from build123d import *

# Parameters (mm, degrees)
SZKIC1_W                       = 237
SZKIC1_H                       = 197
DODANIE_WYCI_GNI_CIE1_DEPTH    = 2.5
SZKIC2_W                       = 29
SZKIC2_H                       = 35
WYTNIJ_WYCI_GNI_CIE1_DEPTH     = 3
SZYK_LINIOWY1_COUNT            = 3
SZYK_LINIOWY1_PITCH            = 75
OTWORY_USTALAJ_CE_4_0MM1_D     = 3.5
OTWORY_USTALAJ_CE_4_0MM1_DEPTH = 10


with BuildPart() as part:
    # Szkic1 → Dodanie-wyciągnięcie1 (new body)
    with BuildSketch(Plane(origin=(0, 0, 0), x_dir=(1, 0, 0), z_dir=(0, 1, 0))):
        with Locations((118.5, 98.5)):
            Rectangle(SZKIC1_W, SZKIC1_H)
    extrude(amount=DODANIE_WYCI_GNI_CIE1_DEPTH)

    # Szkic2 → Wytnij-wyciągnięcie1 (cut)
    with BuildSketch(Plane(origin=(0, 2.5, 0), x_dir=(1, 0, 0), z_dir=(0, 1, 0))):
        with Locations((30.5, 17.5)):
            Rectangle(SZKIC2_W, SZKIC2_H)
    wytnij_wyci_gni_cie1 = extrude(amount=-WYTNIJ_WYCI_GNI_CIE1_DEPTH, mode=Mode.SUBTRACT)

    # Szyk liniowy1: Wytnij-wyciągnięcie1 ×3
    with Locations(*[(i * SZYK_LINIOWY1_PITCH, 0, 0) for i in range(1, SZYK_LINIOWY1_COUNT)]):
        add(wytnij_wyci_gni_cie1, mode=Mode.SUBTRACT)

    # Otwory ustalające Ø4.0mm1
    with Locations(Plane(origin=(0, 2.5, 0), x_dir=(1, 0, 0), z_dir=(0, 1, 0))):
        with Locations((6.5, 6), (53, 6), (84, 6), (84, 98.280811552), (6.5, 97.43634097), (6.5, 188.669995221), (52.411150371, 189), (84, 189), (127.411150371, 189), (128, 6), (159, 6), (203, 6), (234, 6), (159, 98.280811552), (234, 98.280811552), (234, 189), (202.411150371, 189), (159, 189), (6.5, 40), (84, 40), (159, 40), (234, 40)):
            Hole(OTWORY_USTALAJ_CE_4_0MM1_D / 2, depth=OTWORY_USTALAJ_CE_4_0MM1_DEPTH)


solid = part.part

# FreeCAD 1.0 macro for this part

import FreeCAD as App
import Part
import Sketcher

V = App.Vector


def add_polygon(sketch, points):
    """Adds a closed chain of lines whose ends are joined by coincident constraints."""
    first, n = sketch.GeometryCount, len(points)
    for a, b in zip(points, points[1:] + points[:1]):
        sketch.addGeometry(Part.LineSegment(App.Vector(*a, 0), App.Vector(*b, 0)), False)
    for i in range(n):
        sketch.addConstraint(Sketcher.Constraint("Coincident", first + i, 2, first + (i + 1) % n, 1))

doc = App.newDocument("Part")
body = doc.addObject("PartDesign::Body", "Body")

sketch1 = body.newObject("Sketcher::SketchObject", "Sketch")
sketch1.AttachmentSupport = (doc.getObject("XZ_Plane"), [""])
sketch1.MapMode = "FlatFace"
add_polygon(sketch1, [(0, -197), (0, 0), (237, 0), (237, -197)])
sketch1.addConstraint(Sketcher.Constraint("Vertical", 0))
sketch1.addConstraint(Sketcher.Constraint("Horizontal", 1))
sketch1.addConstraint(Sketcher.Constraint("Vertical", 2))
sketch1.addConstraint(Sketcher.Constraint("Horizontal", 3))
sketch1.addConstraint(Sketcher.Constraint("Coincident", 0, 2, -1, 1))
sketch1.addConstraint(Sketcher.Constraint("DistanceX", 1, 1, 1, 2, 237.0))
sketch1.addConstraint(Sketcher.Constraint("DistanceY", 0, 1, 0, 2, 197.0))
pad1 = body.newObject("PartDesign::Pad", "Pad")
pad1.Profile = sketch1
pad1.Length = 2.5
pad1.Reversed = True

sketch2 = body.newObject("Sketcher::SketchObject", "Sketch001")
sketch2.AttachmentSupport = (doc.getObject("XZ_Plane"), [""])
sketch2.MapMode = "FlatFace"
sketch2.AttachmentOffset = App.Placement(V(0, 0, -2.5), App.Rotation())
add_polygon(sketch2, [(16, -35), (16, 0), (45, 0), (45, -35)])
sketch2.addConstraint(Sketcher.Constraint("Vertical", 0))
sketch2.addConstraint(Sketcher.Constraint("Horizontal", 1))
sketch2.addConstraint(Sketcher.Constraint("Vertical", 2))
sketch2.addConstraint(Sketcher.Constraint("Horizontal", 3))
sketch2.addConstraint(Sketcher.Constraint("PointOnObject", 0, 2, -1))
sketch2.addConstraint(Sketcher.Constraint("DistanceX", 1, 1, 1, 2, 29.0))
sketch2.addConstraint(Sketcher.Constraint("DistanceY", 0, 1, 0, 2, 35.0))
sketch2.addConstraint(Sketcher.Constraint("DistanceX", -1, 1, 0, 2, 16.0))
pocket1 = body.newObject("PartDesign::Pocket", "Pocket")
pocket1.Profile = sketch2
pocket1.Length = 3
pocket1.Reversed = True
doc.recompute()

linearpattern = body.newObject("PartDesign::LinearPattern", "LinearPattern")
linearpattern.Originals = [pocket1]
linearpattern.Direction = (doc.getObject("X_Axis"), [""])
linearpattern.Mode = "offset"
linearpattern.Offset = 75
linearpattern.Occurrences = 3
body.Tip = linearpattern

sketch3 = body.newObject("Sketcher::SketchObject", "Sketch002")
sketch3.AttachmentSupport = (doc.getObject("XZ_Plane"), [""])
sketch3.MapMode = "FlatFace"
sketch3.AttachmentOffset = App.Placement(V(0, 0, -2.5), App.Rotation())
sketch3.addGeometry(Part.Circle(V(6.5, -6, 0), V(0, 0, 1), 1.8), False)
sketch3.addGeometry(Part.Circle(V(53, -6, 0), V(0, 0, 1), 1.8), False)
sketch3.addGeometry(Part.Circle(V(84, -6, 0), V(0, 0, 1), 1.8), False)
sketch3.addGeometry(Part.Circle(V(84, -98.3, 0), V(0, 0, 1), 1.8), False)
sketch3.addGeometry(Part.Circle(V(6.5, -97.4, 0), V(0, 0, 1), 1.8), False)
sketch3.addGeometry(Part.Circle(V(6.5, -188.7, 0), V(0, 0, 1), 1.8), False)
sketch3.addGeometry(Part.Circle(V(52.4, -189, 0), V(0, 0, 1), 1.8), False)
sketch3.addGeometry(Part.Circle(V(84, -189, 0), V(0, 0, 1), 1.8), False)
sketch3.addGeometry(Part.Circle(V(127.4, -189, 0), V(0, 0, 1), 1.8), False)
sketch3.addGeometry(Part.Circle(V(128, -6, 0), V(0, 0, 1), 1.8), False)
sketch3.addGeometry(Part.Circle(V(159, -6, 0), V(0, 0, 1), 1.8), False)
sketch3.addGeometry(Part.Circle(V(203, -6, 0), V(0, 0, 1), 1.8), False)
sketch3.addGeometry(Part.Circle(V(234, -6, 0), V(0, 0, 1), 1.8), False)
sketch3.addGeometry(Part.Circle(V(159, -98.3, 0), V(0, 0, 1), 1.8), False)
sketch3.addGeometry(Part.Circle(V(234, -98.3, 0), V(0, 0, 1), 1.8), False)
sketch3.addGeometry(Part.Circle(V(234, -189, 0), V(0, 0, 1), 1.8), False)
sketch3.addGeometry(Part.Circle(V(202.4, -189, 0), V(0, 0, 1), 1.8), False)
sketch3.addGeometry(Part.Circle(V(159, -189, 0), V(0, 0, 1), 1.8), False)
sketch3.addGeometry(Part.Circle(V(6.5, -40, 0), V(0, 0, 1), 1.8), False)
sketch3.addGeometry(Part.Circle(V(84, -40, 0), V(0, 0, 1), 1.8), False)
sketch3.addGeometry(Part.Circle(V(159, -40, 0), V(0, 0, 1), 1.8), False)
sketch3.addGeometry(Part.Circle(V(234, -40, 0), V(0, 0, 1), 1.8), False)
sketch3.addConstraint(Sketcher.Constraint("Equal", 0, 1))
sketch3.addConstraint(Sketcher.Constraint("Equal", 1, 2))
sketch3.addConstraint(Sketcher.Constraint("Equal", 2, 3))
sketch3.addConstraint(Sketcher.Constraint("Equal", 3, 4))
sketch3.addConstraint(Sketcher.Constraint("Equal", 4, 5))
sketch3.addConstraint(Sketcher.Constraint("Equal", 5, 6))
sketch3.addConstraint(Sketcher.Constraint("Equal", 6, 7))
sketch3.addConstraint(Sketcher.Constraint("Equal", 7, 8))
sketch3.addConstraint(Sketcher.Constraint("Equal", 8, 9))
sketch3.addConstraint(Sketcher.Constraint("Equal", 9, 10))
sketch3.addConstraint(Sketcher.Constraint("Equal", 10, 11))
sketch3.addConstraint(Sketcher.Constraint("Equal", 11, 12))
sketch3.addConstraint(Sketcher.Constraint("Equal", 12, 13))
sketch3.addConstraint(Sketcher.Constraint("Equal", 13, 14))
sketch3.addConstraint(Sketcher.Constraint("Equal", 14, 15))
sketch3.addConstraint(Sketcher.Constraint("Equal", 15, 16))
sketch3.addConstraint(Sketcher.Constraint("Equal", 16, 17))
sketch3.addConstraint(Sketcher.Constraint("Equal", 17, 18))
sketch3.addConstraint(Sketcher.Constraint("Equal", 18, 19))
sketch3.addConstraint(Sketcher.Constraint("Equal", 19, 20))
sketch3.addConstraint(Sketcher.Constraint("Equal", 20, 21))
sketch3.addConstraint(Sketcher.Constraint("Horizontal", 0, 3, 1, 3))
sketch3.addConstraint(Sketcher.Constraint("Horizontal", 1, 3, 2, 3))
sketch3.addConstraint(Sketcher.Constraint("Horizontal", 6, 3, 7, 3))
sketch3.addConstraint(Sketcher.Constraint("Horizontal", 7, 3, 8, 3))
sketch3.addConstraint(Sketcher.Constraint("Horizontal", 2, 3, 9, 3))
sketch3.addConstraint(Sketcher.Constraint("Horizontal", 9, 3, 10, 3))
sketch3.addConstraint(Sketcher.Constraint("Horizontal", 10, 3, 11, 3))
sketch3.addConstraint(Sketcher.Constraint("Horizontal", 11, 3, 12, 3))
sketch3.addConstraint(Sketcher.Constraint("Horizontal", 3, 3, 13, 3))
sketch3.addConstraint(Sketcher.Constraint("Horizontal", 13, 3, 14, 3))
sketch3.addConstraint(Sketcher.Constraint("Horizontal", 8, 3, 15, 3))
sketch3.addConstraint(Sketcher.Constraint("Horizontal", 15, 3, 16, 3))
sketch3.addConstraint(Sketcher.Constraint("Horizontal", 16, 3, 17, 3))
sketch3.addConstraint(Sketcher.Constraint("Horizontal", 18, 3, 19, 3))
sketch3.addConstraint(Sketcher.Constraint("Horizontal", 19, 3, 20, 3))
sketch3.addConstraint(Sketcher.Constraint("Horizontal", 20, 3, 21, 3))
sketch3.addConstraint(Sketcher.Constraint("Vertical", 2, 3, 3, 3))
sketch3.addConstraint(Sketcher.Constraint("Vertical", 0, 3, 4, 3))
sketch3.addConstraint(Sketcher.Constraint("Vertical", 4, 3, 5, 3))
sketch3.addConstraint(Sketcher.Constraint("Vertical", 3, 3, 7, 3))
sketch3.addConstraint(Sketcher.Constraint("Vertical", 10, 3, 13, 3))
sketch3.addConstraint(Sketcher.Constraint("Vertical", 12, 3, 14, 3))
sketch3.addConstraint(Sketcher.Constraint("Vertical", 14, 3, 15, 3))
sketch3.addConstraint(Sketcher.Constraint("Vertical", 13, 3, 17, 3))
sketch3.addConstraint(Sketcher.Constraint("Vertical", 5, 3, 18, 3))
sketch3.addConstraint(Sketcher.Constraint("Vertical", 7, 3, 19, 3))
sketch3.addConstraint(Sketcher.Constraint("Vertical", 17, 3, 20, 3))
sketch3.addConstraint(Sketcher.Constraint("Vertical", 15, 3, 21, 3))
sketch3.addConstraint(Sketcher.Constraint("Diameter", 0, 3.5))
sketch3.addConstraint(Sketcher.Constraint("DistanceY", 0, 3, -1, 1, 6.0))
sketch3.addConstraint(Sketcher.Constraint("DistanceX", -1, 1, 1, 3, 53.0))
sketch3.addConstraint(Sketcher.Constraint("DistanceX", -1, 1, 2, 3, 84.0))
sketch3.addConstraint(Sketcher.Constraint("DistanceY", 6, 3, -1, 1, 189.0))
sketch3.addConstraint(Sketcher.Constraint("DistanceX", -1, 1, 9, 3, 128.0))
sketch3.addConstraint(Sketcher.Constraint("DistanceX", -1, 1, 10, 3, 159.0))
sketch3.addConstraint(Sketcher.Constraint("DistanceX", -1, 1, 11, 3, 203.0))
sketch3.addConstraint(Sketcher.Constraint("DistanceX", -1, 1, 12, 3, 234.0))
sketch3.addConstraint(Sketcher.Constraint("DistanceY", 18, 3, -1, 1, 40.0))
sketch3.addConstraint(Sketcher.Constraint("DistanceX", 6, 3, 8, 3, 75.0))
sketch3.addConstraint(Sketcher.Constraint("DistanceX", 8, 3, 16, 3, 75.0))
sketch3.addConstraint(Sketcher.Constraint("DistanceX", -1, 1, 0, 3, 6.5))
sketch3.addConstraint(Sketcher.Constraint("DistanceY", 3, 3, -1, 1, 98.280812))
sketch3.addConstraint(Sketcher.Constraint("DistanceY", 4, 3, -1, 1, 97.436341))
sketch3.addConstraint(Sketcher.Constraint("DistanceX", -1, 1, 6, 3, 52.41115))
sketch3.addConstraint(Sketcher.Constraint("DistanceY", 5, 3, -1, 1, 188.669995))
doc.recompute()
hole = body.newObject("PartDesign::Hole", "Hole")
hole.Profile = sketch3
hole.ThreadType = "None"
hole.Diameter = 3.5
hole.DepthType = "Dimension"
hole.Depth = 10
hole.DrillPoint = "Flat"
hole.Reversed = True

doc.recompute()
